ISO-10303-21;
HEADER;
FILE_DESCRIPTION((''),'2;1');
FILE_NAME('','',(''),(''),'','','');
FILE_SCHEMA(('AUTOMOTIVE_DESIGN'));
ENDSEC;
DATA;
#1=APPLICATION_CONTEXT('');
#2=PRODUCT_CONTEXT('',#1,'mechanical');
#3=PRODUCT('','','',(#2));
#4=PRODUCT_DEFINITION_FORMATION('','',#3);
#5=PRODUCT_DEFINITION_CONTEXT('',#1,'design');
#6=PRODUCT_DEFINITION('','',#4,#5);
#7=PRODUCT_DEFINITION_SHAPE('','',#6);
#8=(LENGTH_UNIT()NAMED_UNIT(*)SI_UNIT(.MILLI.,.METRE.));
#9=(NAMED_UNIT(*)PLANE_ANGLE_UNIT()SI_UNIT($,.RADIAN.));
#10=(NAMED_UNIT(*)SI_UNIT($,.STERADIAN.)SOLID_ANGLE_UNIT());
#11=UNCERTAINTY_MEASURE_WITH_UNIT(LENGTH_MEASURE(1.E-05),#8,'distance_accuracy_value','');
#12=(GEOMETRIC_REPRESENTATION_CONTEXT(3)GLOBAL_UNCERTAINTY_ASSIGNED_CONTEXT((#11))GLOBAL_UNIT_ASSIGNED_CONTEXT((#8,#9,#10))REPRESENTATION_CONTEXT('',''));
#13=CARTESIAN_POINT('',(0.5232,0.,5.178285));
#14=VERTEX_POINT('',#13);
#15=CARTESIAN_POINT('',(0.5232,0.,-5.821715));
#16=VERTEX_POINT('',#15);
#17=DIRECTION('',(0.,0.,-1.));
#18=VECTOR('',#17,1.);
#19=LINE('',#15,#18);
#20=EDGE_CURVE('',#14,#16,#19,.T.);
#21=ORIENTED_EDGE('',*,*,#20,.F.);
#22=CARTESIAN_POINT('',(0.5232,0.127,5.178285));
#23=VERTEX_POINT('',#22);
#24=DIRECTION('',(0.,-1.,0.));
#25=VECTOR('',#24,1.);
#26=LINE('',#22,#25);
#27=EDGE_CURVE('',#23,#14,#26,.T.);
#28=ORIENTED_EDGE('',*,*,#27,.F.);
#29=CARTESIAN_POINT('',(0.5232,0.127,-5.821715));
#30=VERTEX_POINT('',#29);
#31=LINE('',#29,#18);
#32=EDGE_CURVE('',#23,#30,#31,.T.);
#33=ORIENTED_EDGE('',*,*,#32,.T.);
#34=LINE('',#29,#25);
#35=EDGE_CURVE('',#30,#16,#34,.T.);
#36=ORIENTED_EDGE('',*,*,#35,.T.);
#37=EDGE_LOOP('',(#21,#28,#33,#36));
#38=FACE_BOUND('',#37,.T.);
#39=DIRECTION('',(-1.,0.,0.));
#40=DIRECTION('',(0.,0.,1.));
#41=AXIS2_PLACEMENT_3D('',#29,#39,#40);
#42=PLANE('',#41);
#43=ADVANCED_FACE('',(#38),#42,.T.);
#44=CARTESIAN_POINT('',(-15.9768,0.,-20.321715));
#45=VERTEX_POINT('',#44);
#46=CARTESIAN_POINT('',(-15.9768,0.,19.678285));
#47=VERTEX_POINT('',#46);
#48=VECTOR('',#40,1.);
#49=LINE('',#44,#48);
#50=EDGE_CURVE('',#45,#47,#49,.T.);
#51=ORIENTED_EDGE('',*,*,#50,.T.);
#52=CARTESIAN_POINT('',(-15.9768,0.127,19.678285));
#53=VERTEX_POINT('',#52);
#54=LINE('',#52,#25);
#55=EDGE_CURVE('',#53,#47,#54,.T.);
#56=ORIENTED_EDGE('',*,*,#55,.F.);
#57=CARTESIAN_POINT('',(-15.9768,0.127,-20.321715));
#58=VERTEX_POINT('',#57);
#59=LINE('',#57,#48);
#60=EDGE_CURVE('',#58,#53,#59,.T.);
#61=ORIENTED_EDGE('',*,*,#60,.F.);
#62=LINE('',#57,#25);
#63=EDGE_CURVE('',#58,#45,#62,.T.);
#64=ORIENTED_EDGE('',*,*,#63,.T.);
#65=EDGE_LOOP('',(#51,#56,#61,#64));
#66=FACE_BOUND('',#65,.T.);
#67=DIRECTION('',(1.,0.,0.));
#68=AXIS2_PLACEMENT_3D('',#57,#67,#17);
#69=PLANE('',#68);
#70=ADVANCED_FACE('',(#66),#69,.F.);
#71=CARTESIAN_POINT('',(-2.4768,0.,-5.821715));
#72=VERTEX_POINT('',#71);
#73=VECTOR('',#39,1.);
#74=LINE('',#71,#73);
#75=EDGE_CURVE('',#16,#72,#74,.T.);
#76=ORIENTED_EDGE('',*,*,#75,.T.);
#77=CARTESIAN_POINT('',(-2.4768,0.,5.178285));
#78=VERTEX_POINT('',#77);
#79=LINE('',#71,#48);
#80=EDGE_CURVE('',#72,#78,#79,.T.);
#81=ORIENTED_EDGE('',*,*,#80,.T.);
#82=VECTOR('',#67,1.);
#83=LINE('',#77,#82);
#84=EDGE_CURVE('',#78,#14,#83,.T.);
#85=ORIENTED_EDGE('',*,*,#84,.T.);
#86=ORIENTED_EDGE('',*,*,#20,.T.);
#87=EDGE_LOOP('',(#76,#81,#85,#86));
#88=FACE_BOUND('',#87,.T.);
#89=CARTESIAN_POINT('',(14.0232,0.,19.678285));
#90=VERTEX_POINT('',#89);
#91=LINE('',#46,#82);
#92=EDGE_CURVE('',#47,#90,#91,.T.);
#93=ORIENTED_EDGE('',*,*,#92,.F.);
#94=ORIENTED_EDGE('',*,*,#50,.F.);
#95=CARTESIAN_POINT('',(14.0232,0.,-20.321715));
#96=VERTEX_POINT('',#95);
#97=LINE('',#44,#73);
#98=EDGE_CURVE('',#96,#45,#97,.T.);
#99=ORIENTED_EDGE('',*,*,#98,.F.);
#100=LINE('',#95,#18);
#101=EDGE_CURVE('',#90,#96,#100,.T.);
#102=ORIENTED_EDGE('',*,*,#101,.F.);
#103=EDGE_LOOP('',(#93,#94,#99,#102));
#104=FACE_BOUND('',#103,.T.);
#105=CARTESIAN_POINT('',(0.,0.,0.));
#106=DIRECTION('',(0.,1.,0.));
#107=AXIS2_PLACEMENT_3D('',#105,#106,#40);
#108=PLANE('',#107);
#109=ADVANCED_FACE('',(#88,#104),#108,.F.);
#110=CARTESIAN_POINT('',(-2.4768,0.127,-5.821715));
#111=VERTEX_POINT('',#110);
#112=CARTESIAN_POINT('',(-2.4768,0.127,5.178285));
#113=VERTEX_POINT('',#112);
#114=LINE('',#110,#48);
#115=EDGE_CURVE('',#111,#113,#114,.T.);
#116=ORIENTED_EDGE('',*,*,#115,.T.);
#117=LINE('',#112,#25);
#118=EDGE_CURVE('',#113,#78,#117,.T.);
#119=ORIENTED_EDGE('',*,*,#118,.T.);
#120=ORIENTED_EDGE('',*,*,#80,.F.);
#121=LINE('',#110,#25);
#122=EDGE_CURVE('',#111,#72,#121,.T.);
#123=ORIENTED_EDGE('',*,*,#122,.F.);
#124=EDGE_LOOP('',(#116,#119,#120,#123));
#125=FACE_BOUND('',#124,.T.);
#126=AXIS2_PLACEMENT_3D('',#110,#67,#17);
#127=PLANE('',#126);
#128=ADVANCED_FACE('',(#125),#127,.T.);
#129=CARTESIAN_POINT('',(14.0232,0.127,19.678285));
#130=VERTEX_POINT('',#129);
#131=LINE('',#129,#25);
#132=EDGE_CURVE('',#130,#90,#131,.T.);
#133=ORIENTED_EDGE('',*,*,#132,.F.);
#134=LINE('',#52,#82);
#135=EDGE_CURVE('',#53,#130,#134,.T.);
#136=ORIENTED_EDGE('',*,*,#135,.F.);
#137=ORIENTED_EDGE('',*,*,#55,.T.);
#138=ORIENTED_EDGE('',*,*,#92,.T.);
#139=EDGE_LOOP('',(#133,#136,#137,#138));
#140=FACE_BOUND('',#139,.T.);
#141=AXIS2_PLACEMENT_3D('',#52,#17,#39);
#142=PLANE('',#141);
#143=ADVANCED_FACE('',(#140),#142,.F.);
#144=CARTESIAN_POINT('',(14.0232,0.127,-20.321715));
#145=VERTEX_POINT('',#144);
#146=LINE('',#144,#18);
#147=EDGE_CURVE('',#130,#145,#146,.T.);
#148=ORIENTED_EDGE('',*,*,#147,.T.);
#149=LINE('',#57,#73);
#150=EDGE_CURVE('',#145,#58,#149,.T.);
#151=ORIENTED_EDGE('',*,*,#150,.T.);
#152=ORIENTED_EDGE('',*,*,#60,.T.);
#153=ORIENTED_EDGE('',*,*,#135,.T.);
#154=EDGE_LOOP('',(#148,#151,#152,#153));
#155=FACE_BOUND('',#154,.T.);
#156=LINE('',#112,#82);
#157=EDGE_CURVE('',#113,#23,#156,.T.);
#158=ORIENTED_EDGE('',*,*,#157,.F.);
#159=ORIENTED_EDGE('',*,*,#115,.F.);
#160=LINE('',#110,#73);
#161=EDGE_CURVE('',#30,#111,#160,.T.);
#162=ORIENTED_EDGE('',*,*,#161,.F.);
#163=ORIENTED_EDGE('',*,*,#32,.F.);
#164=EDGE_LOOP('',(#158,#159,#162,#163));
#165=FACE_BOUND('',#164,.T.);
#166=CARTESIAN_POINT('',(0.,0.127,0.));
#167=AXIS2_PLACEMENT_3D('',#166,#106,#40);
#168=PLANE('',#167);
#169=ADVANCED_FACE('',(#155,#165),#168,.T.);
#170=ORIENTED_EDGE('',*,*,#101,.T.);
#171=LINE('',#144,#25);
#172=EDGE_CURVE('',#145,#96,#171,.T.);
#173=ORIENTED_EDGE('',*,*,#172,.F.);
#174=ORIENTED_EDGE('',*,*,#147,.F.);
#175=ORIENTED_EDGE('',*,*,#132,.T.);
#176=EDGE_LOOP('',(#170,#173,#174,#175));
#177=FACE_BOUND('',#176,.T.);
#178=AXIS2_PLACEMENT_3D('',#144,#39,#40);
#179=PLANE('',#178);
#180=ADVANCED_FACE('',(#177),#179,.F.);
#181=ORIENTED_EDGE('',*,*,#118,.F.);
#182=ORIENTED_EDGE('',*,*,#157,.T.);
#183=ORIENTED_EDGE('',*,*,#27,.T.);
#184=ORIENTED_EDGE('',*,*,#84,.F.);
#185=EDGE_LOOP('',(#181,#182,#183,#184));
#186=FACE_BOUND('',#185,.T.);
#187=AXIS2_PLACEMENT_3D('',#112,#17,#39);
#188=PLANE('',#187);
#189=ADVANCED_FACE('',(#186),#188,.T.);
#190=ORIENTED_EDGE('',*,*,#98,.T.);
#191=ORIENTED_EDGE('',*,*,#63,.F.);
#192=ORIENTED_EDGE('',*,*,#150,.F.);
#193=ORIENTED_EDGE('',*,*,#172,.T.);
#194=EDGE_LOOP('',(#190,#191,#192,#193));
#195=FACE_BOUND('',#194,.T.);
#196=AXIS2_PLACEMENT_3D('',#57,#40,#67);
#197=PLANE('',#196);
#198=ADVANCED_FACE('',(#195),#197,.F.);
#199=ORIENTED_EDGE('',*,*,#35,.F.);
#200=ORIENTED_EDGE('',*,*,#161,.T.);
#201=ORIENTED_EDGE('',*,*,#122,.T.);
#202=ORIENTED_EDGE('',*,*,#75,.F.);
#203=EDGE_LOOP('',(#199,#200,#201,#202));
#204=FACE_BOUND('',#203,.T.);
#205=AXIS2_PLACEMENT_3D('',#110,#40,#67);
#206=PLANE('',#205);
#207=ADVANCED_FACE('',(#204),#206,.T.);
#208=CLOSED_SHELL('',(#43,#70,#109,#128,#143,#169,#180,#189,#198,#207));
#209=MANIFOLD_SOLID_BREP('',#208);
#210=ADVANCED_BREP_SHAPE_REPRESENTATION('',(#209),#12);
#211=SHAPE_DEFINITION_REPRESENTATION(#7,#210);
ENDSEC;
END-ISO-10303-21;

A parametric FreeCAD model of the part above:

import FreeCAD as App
import Part
import Sketcher
from FreeCAD import Vector
Q = App.Units.Quantity

doc = App.newDocument("Part")
params = doc.addObject("Spreadsheet::Sheet", "Params")
for row, (alias, value) in enumerate([
    ("sketch1_width", "30 mm"),
    ("sketch1_width2", "3 mm"),
    ("sketch1_height", "40 mm"),
    ("sketch1_height2", "11 mm"),
    ("pad1_length", "0.127 mm"),
], start=1):
    params.set(f"A{row}", alias)
    params.set(f"B{row}", "=" + value)
    params.setAlias(f"B{row}", alias)

body = doc.addObject("PartDesign::Body", "Body")

# Sketch on XZ plane
sketch1 = doc.addObject("Sketcher::SketchObject", "Sketch")
body.addObject(sketch1)
sketch1.AttachmentSupport = (doc.XZ_Plane, [""])
sketch1.MapMode = "FlatFace"
sketch1.addGeometry(Part.LineSegment(Vector(-16, -20.3, 0), Vector(-16, 19.7, 0)), False)
sketch1.addGeometry(Part.LineSegment(Vector(-16, 19.7, 0), Vector(14, 19.7, 0)), False)
sketch1.addGeometry(Part.LineSegment(Vector(14, 19.7, 0), Vector(14, -20.3, 0)), False)
sketch1.addGeometry(Part.LineSegment(Vector(14, -20.3, 0), Vector(-16, -20.3, 0)), False)
sketch1.addGeometry(Part.LineSegment(Vector(0.5, 5.2, 0), Vector(-2.5, 5.2, 0)), False)
sketch1.addGeometry(Part.LineSegment(Vector(-2.5, 5.2, 0), Vector(-2.5, -5.8, 0)), False)
sketch1.addGeometry(Part.LineSegment(Vector(-2.5, -5.8, 0), Vector(0.5, -5.8, 0)), False)
sketch1.addGeometry(Part.LineSegment(Vector(0.5, -5.8, 0), Vector(0.5, 5.2, 0)), False)
sketch1.addConstraint(Sketcher.Constraint("Coincident", 0, 2, 1, 1))
sketch1.addConstraint(Sketcher.Constraint("Coincident", 1, 2, 2, 1))
sketch1.addConstraint(Sketcher.Constraint("Coincident", 2, 2, 3, 1))
sketch1.addConstraint(Sketcher.Constraint("Coincident", 3, 2, 0, 1))
sketch1.addConstraint(Sketcher.Constraint("Coincident", 4, 2, 5, 1))
sketch1.addConstraint(Sketcher.Constraint("Coincident", 5, 2, 6, 1))
sketch1.addConstraint(Sketcher.Constraint("Coincident", 6, 2, 7, 1))
sketch1.addConstraint(Sketcher.Constraint("Coincident", 7, 2, 4, 1))
sketch1.addConstraint(Sketcher.Constraint("Vertical", 0))
sketch1.addConstraint(Sketcher.Constraint("Horizontal", 1))
sketch1.addConstraint(Sketcher.Constraint("Vertical", 2))
sketch1.addConstraint(Sketcher.Constraint("Horizontal", 3))
sketch1.addConstraint(Sketcher.Constraint("Horizontal", 4))
sketch1.addConstraint(Sketcher.Constraint("Vertical", 5))
sketch1.addConstraint(Sketcher.Constraint("Horizontal", 6))
sketch1.addConstraint(Sketcher.Constraint("Vertical", 7))
sketch1.addConstraint(Sketcher.Constraint("DistanceX", 1, 1, 1, 2, Q("30 mm")))
sketch1.addConstraint(Sketcher.Constraint("DistanceX", 4, 2, 4, 1, Q("3 mm")))
sketch1.addConstraint(Sketcher.Constraint("DistanceY", 0, 1, 0, 2, Q("40 mm")))
sketch1.addConstraint(Sketcher.Constraint("DistanceY", 5, 2, 5, 1, Q("11 mm")))
sketch1.addConstraint(Sketcher.Constraint("DistanceX", 0, 2, 4, 2, Q("13.5 mm")))
sketch1.addConstraint(Sketcher.Constraint("DistanceY", 4, 2, 0, 2, Q("14.5 mm")))
sketch1.addConstraint(Sketcher.Constraint("DistanceX", 0, 2, -1, 1, Q("15.9768 mm")))
sketch1.addConstraint(Sketcher.Constraint("DistanceY", -1, 1, 0, 2, Q("19.678285 mm")))
sketch1.setExpression("Constraints[16]", "Params.sketch1_width")
sketch1.setExpression("Constraints[17]", "Params.sketch1_width2")
sketch1.setExpression("Constraints[18]", "Params.sketch1_height")
sketch1.setExpression("Constraints[19]", "Params.sketch1_height2")
pad1 = doc.addObject("PartDesign::Pad", "Pad")
body.addObject(pad1)
pad1.Profile = sketch1
pad1.setExpression("Length", "Params.pad1_length")
pad1.Reversed = True

doc.recompute()
